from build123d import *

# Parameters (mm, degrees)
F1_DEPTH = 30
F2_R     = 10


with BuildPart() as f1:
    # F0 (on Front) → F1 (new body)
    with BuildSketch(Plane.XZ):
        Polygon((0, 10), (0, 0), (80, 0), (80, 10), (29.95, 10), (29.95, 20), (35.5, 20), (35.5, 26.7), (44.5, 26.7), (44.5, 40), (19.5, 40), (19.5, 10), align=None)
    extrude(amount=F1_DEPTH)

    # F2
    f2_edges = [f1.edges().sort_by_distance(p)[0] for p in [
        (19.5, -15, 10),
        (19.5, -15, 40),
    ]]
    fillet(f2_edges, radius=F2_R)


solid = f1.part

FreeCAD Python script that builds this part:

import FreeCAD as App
import Part
import Sketcher

V = App.Vector


def edges_at(feature, points):
    """Names of the edges that pass closest to the given points."""
    edges = feature.Shape.Edges
    near = lambda p: min(range(len(edges)), key=lambda i: edges[i].distToShape(Part.Vertex(*p))[0])
    return sorted({f"Edge{near(p) + 1}" for p in points})

doc = App.newDocument("Part")
params = doc.addObject("Spreadsheet::Sheet", "Params")
for row, (alias, value) in enumerate([
    ("sketch1_width", "80 mm"),
    ("sketch1_width2", "9 mm"),
    ("sketch1_width3", "25 mm"),
    ("sketch1_height", "10 mm"),
    ("sketch1_height2", "30 mm"),
    ("pad1_length", "30 mm"),
    ("fillet_radius", "10 mm"),
], start=1):
    params.set(f"A{row}", alias)
    params.set(f"B{row}", "=" + value)
    params.setAlias(f"B{row}", alias)

body = doc.addObject("PartDesign::Body", "Body")

# Sketch on XZ plane
sketch1 = doc.addObject("Sketcher::SketchObject", "Sketch")
body.addObject(sketch1)
sketch1.AttachmentSupport = (doc.XZ_Plane, [""])
sketch1.MapMode = "FlatFace"
sketch1.addGeometry([
    Part.LineSegment(V(0, 10, 0), V(0, 0, 0)),  # 0
    Part.LineSegment(V(0, 0, 0), V(80, 0, 0)),  # 1
    Part.LineSegment(V(80, 0, 0), V(80, 10, 0)),  # 2
    Part.LineSegment(V(80, 10, 0), V(29.95, 10, 0)),  # 3
    Part.LineSegment(V(29.95, 10, 0), V(29.95, 20, 0)),  # 4
    Part.LineSegment(V(29.95, 20, 0), V(35.5, 20, 0)),  # 5
    Part.LineSegment(V(35.5, 20, 0), V(35.5, 26.7, 0)),  # 6
    Part.LineSegment(V(35.5, 26.7, 0), V(44.5, 26.7, 0)),  # 7
    Part.LineSegment(V(44.5, 26.7, 0), V(44.5, 40, 0)),  # 8
    Part.LineSegment(V(44.5, 40, 0), V(19.5, 40, 0)),  # 9
    Part.LineSegment(V(19.5, 40, 0), V(19.5, 10, 0)),  # 10
    Part.LineSegment(V(19.5, 10, 0), V(0, 10, 0)),  # 11
], False)
sketch1.addConstraint([
    Sketcher.Constraint("Coincident", 0, 2, 1, 1),
    Sketcher.Constraint("Coincident", 1, 2, 2, 1),
    Sketcher.Constraint("Coincident", 2, 2, 3, 1),
    Sketcher.Constraint("Coincident", 3, 2, 4, 1),
    Sketcher.Constraint("Coincident", 4, 2, 5, 1),
    Sketcher.Constraint("Coincident", 5, 2, 6, 1),
    Sketcher.Constraint("Coincident", 6, 2, 7, 1),
    Sketcher.Constraint("Coincident", 7, 2, 8, 1),
    Sketcher.Constraint("Coincident", 8, 2, 9, 1),
    Sketcher.Constraint("Coincident", 9, 2, 10, 1),
    Sketcher.Constraint("Coincident", 10, 2, 11, 1),
    Sketcher.Constraint("Coincident", 11, 2, 0, 1),
    Sketcher.Constraint("Vertical", 0),
    Sketcher.Constraint("Horizontal", 1),
    Sketcher.Constraint("Vertical", 2),
    Sketcher.Constraint("Horizontal", 3),
    Sketcher.Constraint("Vertical", 4),
    Sketcher.Constraint("Horizontal", 5),
    Sketcher.Constraint("Vertical", 6),
    Sketcher.Constraint("Horizontal", 7),
    Sketcher.Constraint("Vertical", 8),
    Sketcher.Constraint("Horizontal", 9),
    Sketcher.Constraint("Vertical", 10),
    Sketcher.Constraint("Horizontal", 11),
    Sketcher.Constraint("Coincident", 0, 2, -1, 1),
    Sketcher.Constraint("Horizontal", 3, 2, 10, 2),
    Sketcher.Constraint("Equal", 2, 4),
    Sketcher.Constraint("DistanceX", 1, 1, 1, 2, 80.0),
    Sketcher.Constraint("DistanceX", 7, 1, 7, 2, 9.0),
    Sketcher.Constraint("DistanceX", 9, 2, 9, 1, 25.0),
    Sketcher.Constraint("DistanceY", 0, 2, 0, 1, 10.0),
    Sketcher.Constraint("DistanceY", 10, 2, 10, 1, 30.0),
    Sketcher.Constraint("DistanceX", 11, 2, 11, 1, 19.5),
    Sketcher.Constraint("DistanceY", 6, 1, 6, 2, 6.7),
    Sketcher.Constraint("DistanceX", 3, 2, 3, 1, 50.05),
])
sketch1.setExpression("Constraints[27]", "Params.sketch1_width")
sketch1.setExpression("Constraints[28]", "Params.sketch1_width2")
sketch1.setExpression("Constraints[29]", "Params.sketch1_width3")
sketch1.setExpression("Constraints[30]", "Params.sketch1_height")
sketch1.setExpression("Constraints[31]", "Params.sketch1_height2")
pad1 = doc.addObject("PartDesign::Pad", "Pad")
body.addObject(pad1)
pad1.Profile = sketch1
pad1.setExpression("Length", "Params.pad1_length")
doc.recompute()

fillet = doc.addObject("PartDesign::Fillet", "Fillet")
body.addObject(fillet)
fillet.Base = (pad1, edges_at(pad1, [(19.5, -15, 10), (19.5, -15, 40)]))
fillet.setExpression("Radius", "Params.fillet_radius")

doc.recompute()
